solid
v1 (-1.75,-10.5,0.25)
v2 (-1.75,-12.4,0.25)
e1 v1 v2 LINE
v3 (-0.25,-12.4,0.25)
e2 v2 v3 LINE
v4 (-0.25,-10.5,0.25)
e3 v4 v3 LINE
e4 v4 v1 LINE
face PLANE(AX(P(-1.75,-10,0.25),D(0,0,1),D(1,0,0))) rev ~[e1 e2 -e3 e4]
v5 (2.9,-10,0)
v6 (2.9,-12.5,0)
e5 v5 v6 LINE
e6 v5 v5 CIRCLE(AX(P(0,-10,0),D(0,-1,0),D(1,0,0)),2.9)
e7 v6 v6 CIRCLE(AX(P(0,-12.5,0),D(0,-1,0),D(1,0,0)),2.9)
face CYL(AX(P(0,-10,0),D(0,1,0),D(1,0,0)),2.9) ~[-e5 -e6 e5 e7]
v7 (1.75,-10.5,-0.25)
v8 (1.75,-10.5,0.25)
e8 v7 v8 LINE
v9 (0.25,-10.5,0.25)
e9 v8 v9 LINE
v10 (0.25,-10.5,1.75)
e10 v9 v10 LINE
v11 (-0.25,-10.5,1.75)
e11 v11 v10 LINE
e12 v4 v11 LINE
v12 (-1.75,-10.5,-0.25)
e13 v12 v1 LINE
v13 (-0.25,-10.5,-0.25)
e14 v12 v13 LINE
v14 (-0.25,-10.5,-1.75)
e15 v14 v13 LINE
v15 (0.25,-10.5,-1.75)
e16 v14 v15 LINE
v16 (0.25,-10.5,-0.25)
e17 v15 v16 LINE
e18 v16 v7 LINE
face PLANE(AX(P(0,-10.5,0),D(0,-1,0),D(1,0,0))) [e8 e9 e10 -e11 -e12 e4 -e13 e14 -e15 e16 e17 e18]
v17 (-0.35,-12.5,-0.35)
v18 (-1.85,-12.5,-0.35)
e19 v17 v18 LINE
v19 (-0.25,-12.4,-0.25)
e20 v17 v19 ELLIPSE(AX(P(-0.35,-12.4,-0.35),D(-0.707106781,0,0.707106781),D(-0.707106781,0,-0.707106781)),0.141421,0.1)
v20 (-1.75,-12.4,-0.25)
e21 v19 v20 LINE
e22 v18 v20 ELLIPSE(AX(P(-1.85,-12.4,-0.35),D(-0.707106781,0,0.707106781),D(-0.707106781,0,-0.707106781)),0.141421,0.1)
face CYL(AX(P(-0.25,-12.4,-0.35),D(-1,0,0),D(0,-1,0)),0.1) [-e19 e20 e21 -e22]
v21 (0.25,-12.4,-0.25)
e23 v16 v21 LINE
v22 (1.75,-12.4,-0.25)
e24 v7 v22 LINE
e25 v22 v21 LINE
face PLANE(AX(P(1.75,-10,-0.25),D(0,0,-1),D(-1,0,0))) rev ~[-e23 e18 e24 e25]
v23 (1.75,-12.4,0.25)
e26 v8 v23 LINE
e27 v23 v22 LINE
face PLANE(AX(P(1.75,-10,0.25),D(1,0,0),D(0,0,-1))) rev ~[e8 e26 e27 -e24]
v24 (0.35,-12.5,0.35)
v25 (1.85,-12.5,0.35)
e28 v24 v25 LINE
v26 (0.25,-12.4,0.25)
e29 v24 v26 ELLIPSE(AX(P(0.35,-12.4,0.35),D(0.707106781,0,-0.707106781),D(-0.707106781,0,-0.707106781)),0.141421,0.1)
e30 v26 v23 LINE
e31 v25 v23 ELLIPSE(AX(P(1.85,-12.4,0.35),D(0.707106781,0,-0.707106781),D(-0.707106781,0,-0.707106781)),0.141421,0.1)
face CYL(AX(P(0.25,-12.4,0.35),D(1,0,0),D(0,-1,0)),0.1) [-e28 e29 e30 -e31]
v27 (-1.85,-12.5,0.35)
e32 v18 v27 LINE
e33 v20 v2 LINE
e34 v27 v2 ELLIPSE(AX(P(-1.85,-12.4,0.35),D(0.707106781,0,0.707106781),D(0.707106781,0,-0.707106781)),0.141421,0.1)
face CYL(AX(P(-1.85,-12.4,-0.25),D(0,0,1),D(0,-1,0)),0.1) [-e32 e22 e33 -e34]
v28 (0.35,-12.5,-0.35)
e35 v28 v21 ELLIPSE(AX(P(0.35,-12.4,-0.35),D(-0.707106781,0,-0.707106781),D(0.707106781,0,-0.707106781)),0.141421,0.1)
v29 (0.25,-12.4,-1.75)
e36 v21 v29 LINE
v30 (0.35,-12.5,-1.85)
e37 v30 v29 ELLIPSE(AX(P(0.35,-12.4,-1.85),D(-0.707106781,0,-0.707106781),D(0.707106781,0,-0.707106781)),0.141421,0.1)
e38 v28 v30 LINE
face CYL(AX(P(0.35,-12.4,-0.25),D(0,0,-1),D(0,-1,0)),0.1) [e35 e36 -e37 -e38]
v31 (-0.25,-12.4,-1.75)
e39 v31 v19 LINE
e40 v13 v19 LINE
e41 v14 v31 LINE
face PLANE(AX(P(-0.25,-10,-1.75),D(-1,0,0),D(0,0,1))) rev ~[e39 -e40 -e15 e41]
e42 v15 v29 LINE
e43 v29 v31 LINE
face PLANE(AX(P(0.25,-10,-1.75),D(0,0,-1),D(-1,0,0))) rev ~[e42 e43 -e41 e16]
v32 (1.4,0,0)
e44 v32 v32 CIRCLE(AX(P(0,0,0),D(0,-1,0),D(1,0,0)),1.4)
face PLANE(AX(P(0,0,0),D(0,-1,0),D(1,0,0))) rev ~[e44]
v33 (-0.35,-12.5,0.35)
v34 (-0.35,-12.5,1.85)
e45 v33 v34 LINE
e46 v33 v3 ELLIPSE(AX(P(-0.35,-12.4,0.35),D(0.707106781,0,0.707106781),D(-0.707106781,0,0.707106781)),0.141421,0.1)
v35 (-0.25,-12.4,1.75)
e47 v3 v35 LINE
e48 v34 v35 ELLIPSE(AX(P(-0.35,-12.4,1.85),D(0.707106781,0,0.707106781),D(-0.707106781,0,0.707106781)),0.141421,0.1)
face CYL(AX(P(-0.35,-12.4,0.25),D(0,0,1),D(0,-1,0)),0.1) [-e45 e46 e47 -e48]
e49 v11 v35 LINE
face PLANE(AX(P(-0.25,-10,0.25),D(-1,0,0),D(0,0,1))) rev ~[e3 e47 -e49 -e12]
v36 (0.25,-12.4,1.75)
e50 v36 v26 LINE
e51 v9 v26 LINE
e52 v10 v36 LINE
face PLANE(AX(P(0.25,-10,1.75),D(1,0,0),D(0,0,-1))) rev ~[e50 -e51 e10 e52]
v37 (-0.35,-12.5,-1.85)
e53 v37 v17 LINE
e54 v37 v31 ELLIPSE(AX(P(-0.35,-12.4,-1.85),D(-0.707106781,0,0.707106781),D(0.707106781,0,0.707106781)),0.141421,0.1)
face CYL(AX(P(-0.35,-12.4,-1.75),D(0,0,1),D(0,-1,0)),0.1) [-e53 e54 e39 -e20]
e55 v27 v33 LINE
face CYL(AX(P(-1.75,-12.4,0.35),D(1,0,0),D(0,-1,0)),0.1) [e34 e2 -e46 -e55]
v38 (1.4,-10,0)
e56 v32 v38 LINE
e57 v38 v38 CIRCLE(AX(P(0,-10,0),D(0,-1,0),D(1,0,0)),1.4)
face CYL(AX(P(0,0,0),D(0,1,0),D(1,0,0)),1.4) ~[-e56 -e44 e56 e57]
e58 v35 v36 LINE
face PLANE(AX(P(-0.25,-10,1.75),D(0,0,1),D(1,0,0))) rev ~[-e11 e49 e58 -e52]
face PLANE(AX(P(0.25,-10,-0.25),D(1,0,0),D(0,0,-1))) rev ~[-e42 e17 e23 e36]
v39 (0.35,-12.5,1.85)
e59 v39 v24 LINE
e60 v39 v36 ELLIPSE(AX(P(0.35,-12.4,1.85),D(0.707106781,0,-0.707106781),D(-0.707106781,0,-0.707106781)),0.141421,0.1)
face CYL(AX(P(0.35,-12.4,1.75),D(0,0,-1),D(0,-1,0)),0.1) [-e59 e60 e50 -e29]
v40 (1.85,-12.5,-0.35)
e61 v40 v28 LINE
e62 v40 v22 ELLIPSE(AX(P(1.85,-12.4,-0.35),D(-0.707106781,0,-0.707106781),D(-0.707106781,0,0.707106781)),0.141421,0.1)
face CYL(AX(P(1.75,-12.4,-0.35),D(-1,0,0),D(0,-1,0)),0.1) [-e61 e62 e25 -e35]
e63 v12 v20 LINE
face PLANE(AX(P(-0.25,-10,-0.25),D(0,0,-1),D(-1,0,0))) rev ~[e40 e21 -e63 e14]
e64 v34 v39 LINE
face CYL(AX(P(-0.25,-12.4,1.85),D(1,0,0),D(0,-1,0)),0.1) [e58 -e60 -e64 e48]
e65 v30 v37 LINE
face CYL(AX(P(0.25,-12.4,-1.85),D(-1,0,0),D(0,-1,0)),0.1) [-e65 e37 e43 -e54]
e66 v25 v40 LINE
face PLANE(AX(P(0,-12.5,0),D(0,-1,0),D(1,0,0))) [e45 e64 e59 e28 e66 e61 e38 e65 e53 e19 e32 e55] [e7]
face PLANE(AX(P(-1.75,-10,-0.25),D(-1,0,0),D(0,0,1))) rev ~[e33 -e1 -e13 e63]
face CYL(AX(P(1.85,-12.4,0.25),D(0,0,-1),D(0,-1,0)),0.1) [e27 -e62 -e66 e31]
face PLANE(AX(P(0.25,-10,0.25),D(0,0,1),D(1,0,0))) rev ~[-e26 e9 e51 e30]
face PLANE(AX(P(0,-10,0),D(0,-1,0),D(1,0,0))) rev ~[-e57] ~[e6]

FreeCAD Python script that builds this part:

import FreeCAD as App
import Part
import Sketcher
Q = App.Units.Quantity


def edges_at(feature, points):
    """Names of the edges that pass closest to the given points."""
    edges = feature.Shape.Edges
    near = lambda p: min(range(len(edges)), key=lambda i: edges[i].distToShape(Part.Vertex(*p))[0])
    return sorted({f"Edge{near(p) + 1}" for p in points})


def add_polygon(sketch, points):
    """Adds a closed chain of lines whose ends are joined by coincident constraints."""
    first, n = sketch.GeometryCount, len(points)
    for a, b in zip(points, points[1:] + points[:1]):
        sketch.addGeometry(Part.LineSegment(App.Vector(*a, 0), App.Vector(*b, 0)), False)
    for i in range(n):
        sketch.addConstraint(Sketcher.Constraint("Coincident", first + i, 2, first + (i + 1) % n, 1))

doc = App.newDocument("Part")
body = doc.addObject("PartDesign::Body", "Body")

# Sketch on XZ plane
sketch1 = body.newObject("Sketcher::SketchObject", "Sketch")
sketch1.AttachmentSupport = (doc.getObject("XZ_Plane"), [""])
sketch1.MapMode = "FlatFace"
sketch1.addGeometry(Part.Circle(App.Vector(0, 0, 0), App.Vector(0, 0, 1), 1.4), False)
sketch1.addConstraint([
    Sketcher.Constraint("Coincident", 0, 3, -1, 1),
    Sketcher.Constraint("Diameter", 0, Q("2.8 mm")),
])
pad1 = body.newObject("PartDesign::Pad", "Pad")
pad1.Profile = sketch1
pad1.Length = 10

# Sketch on XZ plane
sketch2 = body.newObject("Sketcher::SketchObject", "Sketch001")
sketch2.AttachmentSupport = (doc.getObject("XZ_Plane"), [""])
sketch2.MapMode = "FlatFace"
sketch2.AttachmentOffset = App.Placement(App.Vector(0, 0, 10), App.Rotation())
sketch2.addGeometry(Part.Circle(App.Vector(0, 0, 0), App.Vector(0, 0, 1), 2.9), False)  # 0
add_polygon(sketch2, [(1.8, -0.2), (0.2, -0.2), (0.2, -1.8), (-0.2, -1.8), (-0.2, -0.2), (-1.8, -0.2), (-1.8, 0.2), (-0.2, 0.2), (-0.2, 1.8), (0.2, 1.8), (0.2, 0.2), (1.8, 0.2)])  # lines 1-12
sketch2.addConstraint([
    Sketcher.Constraint("Horizontal", 1),
    Sketcher.Constraint("Vertical", 2),
    Sketcher.Constraint("Horizontal", 3),
    Sketcher.Constraint("Vertical", 4),
    Sketcher.Constraint("Horizontal", 5),
    Sketcher.Constraint("Vertical", 6),
    Sketcher.Constraint("Horizontal", 7),
    Sketcher.Constraint("Vertical", 8),
    Sketcher.Constraint("Horizontal", 9),
    Sketcher.Constraint("Vertical", 10),
    Sketcher.Constraint("Horizontal", 11),
    Sketcher.Constraint("Vertical", 12),
    Sketcher.Constraint("Coincident", 0, 3, -1, 1),
    Sketcher.Constraint("Symmetric", 1, 2, 7, 2, -1, 1),
    Sketcher.Constraint("Symmetric", 3, 2, 9, 2, -1, 1),
    Sketcher.Constraint("Symmetric", 5, 2, 11, 2, -1, 1),
    Sketcher.Constraint("Symmetric", 1, 2, 4, 2, -2),
    Sketcher.Constraint("Equal", 11, 2),
    Sketcher.Constraint("Equal", 9, 6),
    Sketcher.Constraint("Diameter", 0, Q("5.8 mm")),
    Sketcher.Constraint("DistanceX", 1, 2, 1, 1, Q("1.5 mm")),
    Sketcher.Constraint("DistanceX", 3, 2, 3, 1, Q("0.5 mm")),
])
pad2 = body.newObject("PartDesign::Pad", "Pad001")
pad2.Profile = sketch2
pad2.Length = 2.5

# Sketch on XZ plane
sketch3 = body.newObject("Sketcher::SketchObject", "Sketch002")
sketch3.AttachmentSupport = (doc.getObject("XZ_Plane"), [""])
sketch3.MapMode = "FlatFace"
sketch3.AttachmentOffset = App.Placement(App.Vector(0, 0, 10), App.Rotation())
add_polygon(sketch3, [(-1.8, 0.2), (-1.8, -0.2), (-0.2, -0.2), (-0.2, -1.8), (0.2, -1.8), (0.2, -0.2), (1.8, -0.2), (1.8, 0.2), (0.2, 0.2), (0.2, 1.8), (-0.2, 1.8), (-0.2, 0.2)])  # lines 0-11
sketch3.addConstraint([
    Sketcher.Constraint("Vertical", 0),
    Sketcher.Constraint("Horizontal", 1),
    Sketcher.Constraint("Vertical", 2),
    Sketcher.Constraint("Horizontal", 3),
    Sketcher.Constraint("Vertical", 4),
    Sketcher.Constraint("Horizontal", 5),
    Sketcher.Constraint("Vertical", 6),
    Sketcher.Constraint("Horizontal", 7),
    Sketcher.Constraint("Vertical", 8),
    Sketcher.Constraint("Horizontal", 9),
    Sketcher.Constraint("Vertical", 10),
    Sketcher.Constraint("Horizontal", 11),
    Sketcher.Constraint("Symmetric", 0, 2, 6, 2, -1, 1),
    Sketcher.Constraint("Symmetric", 2, 2, 8, 2, -1, 1),
    Sketcher.Constraint("Symmetric", 4, 2, 10, 2, -1, 1),
    Sketcher.Constraint("Symmetric", 1, 2, 4, 2, -2),
    Sketcher.Constraint("Equal", 9, 0),
    Sketcher.Constraint("Equal", 11, 2),
    Sketcher.Constraint("DistanceX", 1, 1, 1, 2, Q("1.5 mm")),
    Sketcher.Constraint("DistanceX", 3, 1, 3, 2, Q("0.5 mm")),
])
pad3 = body.newObject("PartDesign::Pad", "Pad002")
pad3.Profile = sketch3
pad3.Length = 0.5
doc.recompute()

fillet = body.newObject("PartDesign::Fillet", "Fillet")
fillet.Base = (pad3, edges_at(pad3, [
    (-0.25, -12.5, 1),
    (-1, -12.5, 0.25),
    (-1, -12.5, -0.25),
    (-0.25, -12.5, -1),
    (-1.75, -12.5, 0),
    (0.25, -12.5, -1),
    (0, -12.5, -1.75),
    (1, -12.5, -0.25),
    (1.75, -12.5, 0),
    (0.25, -12.5, 1),
    (0, -12.5, 1.75),
    (1, -12.5, 0.25),
]))
fillet.Radius = 0.1

doc.recompute()
